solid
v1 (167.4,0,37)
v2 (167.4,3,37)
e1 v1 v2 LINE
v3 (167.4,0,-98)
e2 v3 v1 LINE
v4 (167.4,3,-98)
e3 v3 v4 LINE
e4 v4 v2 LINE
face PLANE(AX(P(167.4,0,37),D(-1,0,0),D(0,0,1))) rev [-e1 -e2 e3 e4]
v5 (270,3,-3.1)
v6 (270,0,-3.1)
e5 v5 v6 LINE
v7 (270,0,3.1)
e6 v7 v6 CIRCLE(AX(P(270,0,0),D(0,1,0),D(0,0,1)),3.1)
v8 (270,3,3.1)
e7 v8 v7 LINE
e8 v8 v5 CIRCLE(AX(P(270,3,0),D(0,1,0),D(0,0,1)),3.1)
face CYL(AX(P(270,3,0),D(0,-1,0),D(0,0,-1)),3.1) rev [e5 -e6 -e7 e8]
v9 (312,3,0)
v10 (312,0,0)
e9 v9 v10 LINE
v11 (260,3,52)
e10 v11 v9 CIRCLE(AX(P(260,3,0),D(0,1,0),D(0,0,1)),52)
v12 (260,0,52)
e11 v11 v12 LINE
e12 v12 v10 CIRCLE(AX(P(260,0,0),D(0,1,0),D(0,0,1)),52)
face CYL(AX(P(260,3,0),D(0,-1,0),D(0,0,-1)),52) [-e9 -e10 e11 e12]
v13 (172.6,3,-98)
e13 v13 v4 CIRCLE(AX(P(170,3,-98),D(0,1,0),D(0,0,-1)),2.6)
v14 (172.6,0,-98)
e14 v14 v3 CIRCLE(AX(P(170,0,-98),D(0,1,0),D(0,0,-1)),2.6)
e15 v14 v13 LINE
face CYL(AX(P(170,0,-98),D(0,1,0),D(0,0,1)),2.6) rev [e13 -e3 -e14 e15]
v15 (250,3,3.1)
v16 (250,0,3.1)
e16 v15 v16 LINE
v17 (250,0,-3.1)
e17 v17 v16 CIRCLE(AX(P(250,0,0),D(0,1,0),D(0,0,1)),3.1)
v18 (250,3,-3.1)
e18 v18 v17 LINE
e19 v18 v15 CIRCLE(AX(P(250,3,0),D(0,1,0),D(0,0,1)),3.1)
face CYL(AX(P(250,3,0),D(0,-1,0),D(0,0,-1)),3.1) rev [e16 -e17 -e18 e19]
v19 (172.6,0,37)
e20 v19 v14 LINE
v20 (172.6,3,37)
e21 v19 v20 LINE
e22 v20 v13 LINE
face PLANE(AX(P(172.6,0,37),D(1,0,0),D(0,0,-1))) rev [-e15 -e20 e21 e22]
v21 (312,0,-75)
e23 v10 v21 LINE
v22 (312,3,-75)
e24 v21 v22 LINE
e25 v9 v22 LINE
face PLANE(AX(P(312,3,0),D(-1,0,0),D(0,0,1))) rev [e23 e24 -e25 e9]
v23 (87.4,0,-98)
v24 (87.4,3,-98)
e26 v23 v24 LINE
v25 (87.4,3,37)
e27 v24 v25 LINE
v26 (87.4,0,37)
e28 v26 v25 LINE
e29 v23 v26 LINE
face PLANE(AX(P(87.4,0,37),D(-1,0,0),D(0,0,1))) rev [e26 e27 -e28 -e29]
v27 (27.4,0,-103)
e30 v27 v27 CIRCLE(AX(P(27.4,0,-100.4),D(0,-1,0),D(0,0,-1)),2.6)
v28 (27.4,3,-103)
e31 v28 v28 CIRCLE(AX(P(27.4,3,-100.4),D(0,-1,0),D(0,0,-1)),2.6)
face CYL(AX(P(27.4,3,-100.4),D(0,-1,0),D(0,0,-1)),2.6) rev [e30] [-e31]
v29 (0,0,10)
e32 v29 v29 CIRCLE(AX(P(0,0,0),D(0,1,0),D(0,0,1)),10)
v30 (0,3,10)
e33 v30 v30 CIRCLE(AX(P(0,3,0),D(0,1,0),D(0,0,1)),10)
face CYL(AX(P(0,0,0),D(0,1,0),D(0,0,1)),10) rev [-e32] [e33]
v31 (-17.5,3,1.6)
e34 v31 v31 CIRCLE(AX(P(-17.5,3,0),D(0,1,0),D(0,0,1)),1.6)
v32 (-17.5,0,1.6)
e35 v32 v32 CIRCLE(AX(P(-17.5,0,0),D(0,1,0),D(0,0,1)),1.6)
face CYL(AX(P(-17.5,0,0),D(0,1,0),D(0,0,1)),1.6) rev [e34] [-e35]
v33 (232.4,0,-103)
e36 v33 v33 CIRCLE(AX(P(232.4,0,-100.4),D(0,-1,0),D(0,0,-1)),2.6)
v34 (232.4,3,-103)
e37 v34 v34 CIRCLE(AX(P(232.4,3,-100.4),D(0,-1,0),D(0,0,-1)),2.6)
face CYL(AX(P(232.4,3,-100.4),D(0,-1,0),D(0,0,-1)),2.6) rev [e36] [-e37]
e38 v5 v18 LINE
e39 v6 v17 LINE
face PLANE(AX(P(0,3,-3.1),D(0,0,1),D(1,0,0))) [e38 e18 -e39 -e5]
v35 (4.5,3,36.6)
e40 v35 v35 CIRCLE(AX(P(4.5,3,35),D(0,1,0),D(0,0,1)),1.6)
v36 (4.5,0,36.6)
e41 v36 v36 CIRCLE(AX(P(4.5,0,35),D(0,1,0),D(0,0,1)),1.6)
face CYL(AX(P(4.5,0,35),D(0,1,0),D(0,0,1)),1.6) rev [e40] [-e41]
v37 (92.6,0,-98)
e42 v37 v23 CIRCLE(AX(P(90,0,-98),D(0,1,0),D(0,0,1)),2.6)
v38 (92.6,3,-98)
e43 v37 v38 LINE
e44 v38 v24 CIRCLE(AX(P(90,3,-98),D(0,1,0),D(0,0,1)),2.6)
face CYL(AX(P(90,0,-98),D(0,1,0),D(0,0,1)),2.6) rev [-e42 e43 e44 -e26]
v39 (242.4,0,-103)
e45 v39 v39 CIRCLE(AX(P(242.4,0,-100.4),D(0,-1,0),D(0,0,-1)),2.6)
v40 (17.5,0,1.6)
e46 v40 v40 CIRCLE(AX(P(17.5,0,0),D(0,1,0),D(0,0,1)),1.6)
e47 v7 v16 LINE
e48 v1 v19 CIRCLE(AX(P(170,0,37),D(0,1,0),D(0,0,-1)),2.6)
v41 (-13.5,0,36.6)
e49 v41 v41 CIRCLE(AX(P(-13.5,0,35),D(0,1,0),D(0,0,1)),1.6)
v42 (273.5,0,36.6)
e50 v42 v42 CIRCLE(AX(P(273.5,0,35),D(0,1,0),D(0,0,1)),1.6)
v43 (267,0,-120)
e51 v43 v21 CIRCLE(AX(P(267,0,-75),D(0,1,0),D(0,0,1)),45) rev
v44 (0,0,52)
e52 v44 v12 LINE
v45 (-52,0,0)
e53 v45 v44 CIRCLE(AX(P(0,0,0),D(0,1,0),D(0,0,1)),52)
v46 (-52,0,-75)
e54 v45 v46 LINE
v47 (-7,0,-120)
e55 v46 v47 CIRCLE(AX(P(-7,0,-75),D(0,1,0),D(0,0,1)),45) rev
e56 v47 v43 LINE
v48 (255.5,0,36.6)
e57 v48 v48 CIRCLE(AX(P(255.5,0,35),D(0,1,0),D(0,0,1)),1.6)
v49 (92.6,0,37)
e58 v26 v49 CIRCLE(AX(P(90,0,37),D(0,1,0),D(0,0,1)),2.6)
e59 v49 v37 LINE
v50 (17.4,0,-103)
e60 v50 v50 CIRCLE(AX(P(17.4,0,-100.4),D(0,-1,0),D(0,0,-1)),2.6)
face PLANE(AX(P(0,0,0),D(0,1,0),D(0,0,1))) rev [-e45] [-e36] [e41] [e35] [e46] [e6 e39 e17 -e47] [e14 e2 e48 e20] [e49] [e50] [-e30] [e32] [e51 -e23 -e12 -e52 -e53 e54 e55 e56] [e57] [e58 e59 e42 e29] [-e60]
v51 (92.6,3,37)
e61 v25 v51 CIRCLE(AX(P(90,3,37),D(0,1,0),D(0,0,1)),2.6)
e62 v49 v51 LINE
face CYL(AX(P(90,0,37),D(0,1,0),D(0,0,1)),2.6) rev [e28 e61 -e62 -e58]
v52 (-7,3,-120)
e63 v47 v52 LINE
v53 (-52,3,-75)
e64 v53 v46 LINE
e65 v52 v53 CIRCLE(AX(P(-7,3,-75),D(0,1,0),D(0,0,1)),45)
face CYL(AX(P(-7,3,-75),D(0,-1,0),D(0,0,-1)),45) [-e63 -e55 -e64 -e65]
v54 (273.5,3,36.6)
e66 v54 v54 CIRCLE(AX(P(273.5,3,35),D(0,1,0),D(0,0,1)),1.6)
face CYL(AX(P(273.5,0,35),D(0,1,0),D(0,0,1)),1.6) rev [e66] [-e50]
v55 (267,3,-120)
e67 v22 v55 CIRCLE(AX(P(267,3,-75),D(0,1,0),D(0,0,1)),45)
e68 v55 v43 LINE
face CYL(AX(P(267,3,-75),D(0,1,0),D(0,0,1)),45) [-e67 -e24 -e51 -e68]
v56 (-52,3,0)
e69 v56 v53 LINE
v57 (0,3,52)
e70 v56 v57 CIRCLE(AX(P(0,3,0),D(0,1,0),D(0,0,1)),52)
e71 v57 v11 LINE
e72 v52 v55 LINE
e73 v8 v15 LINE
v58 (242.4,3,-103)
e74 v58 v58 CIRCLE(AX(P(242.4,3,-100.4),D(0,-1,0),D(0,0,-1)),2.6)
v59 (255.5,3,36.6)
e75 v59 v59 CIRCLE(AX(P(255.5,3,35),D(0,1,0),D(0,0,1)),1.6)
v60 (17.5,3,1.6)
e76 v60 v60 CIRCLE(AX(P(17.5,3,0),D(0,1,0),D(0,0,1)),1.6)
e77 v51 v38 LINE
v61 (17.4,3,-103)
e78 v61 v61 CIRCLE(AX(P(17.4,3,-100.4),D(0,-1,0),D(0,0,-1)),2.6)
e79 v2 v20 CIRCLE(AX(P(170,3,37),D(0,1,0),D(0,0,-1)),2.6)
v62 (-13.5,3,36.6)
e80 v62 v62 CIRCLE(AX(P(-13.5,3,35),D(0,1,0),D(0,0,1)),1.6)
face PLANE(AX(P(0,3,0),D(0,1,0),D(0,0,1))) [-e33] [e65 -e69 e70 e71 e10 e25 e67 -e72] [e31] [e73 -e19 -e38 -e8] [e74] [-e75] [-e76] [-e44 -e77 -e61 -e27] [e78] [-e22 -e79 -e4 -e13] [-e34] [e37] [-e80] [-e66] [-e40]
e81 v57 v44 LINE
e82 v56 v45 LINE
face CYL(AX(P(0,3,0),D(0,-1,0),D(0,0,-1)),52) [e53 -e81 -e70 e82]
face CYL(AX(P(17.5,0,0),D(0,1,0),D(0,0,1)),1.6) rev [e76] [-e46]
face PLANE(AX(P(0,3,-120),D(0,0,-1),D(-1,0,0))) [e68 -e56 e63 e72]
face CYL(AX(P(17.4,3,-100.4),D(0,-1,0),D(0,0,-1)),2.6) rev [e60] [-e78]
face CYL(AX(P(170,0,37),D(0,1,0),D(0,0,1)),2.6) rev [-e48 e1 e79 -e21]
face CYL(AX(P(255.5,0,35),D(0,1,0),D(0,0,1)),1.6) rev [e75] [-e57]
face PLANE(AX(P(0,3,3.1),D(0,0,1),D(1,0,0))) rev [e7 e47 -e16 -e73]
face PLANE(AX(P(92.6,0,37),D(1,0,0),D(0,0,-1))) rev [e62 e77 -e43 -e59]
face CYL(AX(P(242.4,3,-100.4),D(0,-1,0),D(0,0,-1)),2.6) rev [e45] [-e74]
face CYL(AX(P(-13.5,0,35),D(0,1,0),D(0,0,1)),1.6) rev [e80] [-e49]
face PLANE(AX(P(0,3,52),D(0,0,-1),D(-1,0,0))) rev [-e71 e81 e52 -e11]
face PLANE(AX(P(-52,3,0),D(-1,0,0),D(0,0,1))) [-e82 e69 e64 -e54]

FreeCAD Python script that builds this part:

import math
import FreeCAD as App
import Part
import Sketcher
from FreeCAD import Vector
Q = App.Units.Quantity


def edges_at(feature, points):
    """Names of the edges that pass closest to the given points."""
    edges = feature.Shape.Edges
    near = lambda p: min(range(len(edges)), key=lambda i: edges[i].distToShape(Part.Vertex(*p))[0])
    return sorted({f"Edge{near(p) + 1}" for p in points})

doc = App.newDocument("Part")
body = doc.addObject("PartDesign::Body", "Body")

sketch1 = body.newObject("Sketcher::SketchObject", "Sketch")
sketch1.AttachmentSupport = (doc.getObject("XZ_Plane"), [""])
sketch1.MapMode = "FlatFace"
sketch1.addGeometry(Part.LineSegment(Vector(0, 52, 0), Vector(260, 52, 0)), False)
sketch1.addGeometry(Part.ArcOfCircle(Part.Circle(Vector(260, 0, 0), Vector(0, 0, 1), 52), math.radians(0), math.radians(90)), False)
sketch1.addGeometry(Part.LineSegment(Vector(312, 0, 0), Vector(312, -120, 0)), False)
sketch1.addGeometry(Part.LineSegment(Vector(312, -120, 0), Vector(-52, -120, 0)), False)
sketch1.addGeometry(Part.LineSegment(Vector(-52, -120, 0), Vector(-52, 0, 0)), False)
sketch1.addGeometry(Part.ArcOfCircle(Part.Circle(Vector(0, 0, 0), Vector(0, 0, 1), 52), math.radians(90), math.radians(180)), False)
sketch1.addGeometry(Part.Circle(Vector(0, 0, 0), Vector(0, 0, 1), 3.1), False)
sketch1.addGeometry(Part.ArcOfCircle(Part.Circle(Vector(250, 0, 0), Vector(0, 0, 1), 3.1), math.radians(90), math.radians(270)), False)
sketch1.addGeometry(Part.LineSegment(Vector(250, -3.1, 0), Vector(270, -3.1, 0)), False)
sketch1.addGeometry(Part.ArcOfCircle(Part.Circle(Vector(270, 0, 0), Vector(0, 0, 1), 3.1), math.radians(-90), math.radians(90)), False)
sketch1.addGeometry(Part.LineSegment(Vector(270, 3.1, 0), Vector(250, 3.1, 0)), False)
sketch1.addConstraint(Sketcher.Constraint("Tangent", 0, 2, 1, 2))
sketch1.addConstraint(Sketcher.Constraint("Tangent", 1, 1, 2, 1))
sketch1.addConstraint(Sketcher.Constraint("Coincident", 2, 2, 3, 1))
sketch1.addConstraint(Sketcher.Constraint("Coincident", 3, 2, 4, 1))
sketch1.addConstraint(Sketcher.Constraint("Tangent", 4, 2, 5, 2))
sketch1.addConstraint(Sketcher.Constraint("Tangent", 5, 1, 0, 1))
sketch1.addConstraint(Sketcher.Constraint("Tangent", 7, 2, 8, 1))
sketch1.addConstraint(Sketcher.Constraint("Tangent", 8, 2, 9, 1))
sketch1.addConstraint(Sketcher.Constraint("Tangent", 9, 2, 10, 1))
sketch1.addConstraint(Sketcher.Constraint("Tangent", 10, 2, 7, 1))
sketch1.addConstraint(Sketcher.Constraint("Horizontal", 0))
sketch1.addConstraint(Sketcher.Constraint("Vertical", 2))
sketch1.addConstraint(Sketcher.Constraint("Horizontal", 3))
sketch1.addConstraint(Sketcher.Constraint("Vertical", 4))
sketch1.addConstraint(Sketcher.Constraint("Horizontal", 8))
sketch1.addConstraint(Sketcher.Constraint("Horizontal", 10))
sketch1.addConstraint(Sketcher.Constraint("Coincident", 5, 3, -1, 1))
sketch1.addConstraint(Sketcher.Constraint("Coincident", 6, 3, -1, 1))
sketch1.addConstraint(Sketcher.Constraint("Equal", 1, 5))
sketch1.addConstraint(Sketcher.Constraint("Equal", 6, 7))
sketch1.addConstraint(Sketcher.Constraint("PointOnObject", 7, 3, -1))
sketch1.addConstraint(Sketcher.Constraint("Radius", 1, Q("52 mm")))
sketch1.addConstraint(Sketcher.Constraint("Diameter", 6, Q("6.2 mm")))
sketch1.addConstraint(Sketcher.Constraint("DistanceX", 0, 1, 0, 2, Q("260 mm")))
sketch1.addConstraint(Sketcher.Constraint("DistanceX", 8, 1, 8, 2, Q("20 mm")))
sketch1.addConstraint(Sketcher.Constraint("DistanceY", 2, 2, 2, 1, Q("120 mm")))
sketch1.addConstraint(Sketcher.Constraint("DistanceX", -1, 1, 7, 3, Q("250 mm")))
pad1 = body.newObject("PartDesign::Pad", "Pad")
pad1.Profile = sketch1
pad1.Length = 3
pad1.Reversed = True

sketch2 = body.newObject("Sketcher::SketchObject", "Sketch001")
sketch2.AttachmentSupport = (doc.getObject("XZ_Plane"), [""])
sketch2.MapMode = "FlatFace"
sketch2.AttachmentOffset = App.Placement(Vector(0, 0, -3), App.Rotation())
sketch2.addGeometry(Part.LineSegment(Vector(87.4, -98, 0), Vector(87.4, 37, 0)), False)
sketch2.addGeometry(Part.ArcOfCircle(Part.Circle(Vector(90, 37, 0), Vector(0, 0, 1), 2.6), math.radians(0), math.radians(180)), False)
sketch2.addGeometry(Part.LineSegment(Vector(92.6, 37, 0), Vector(92.6, -98, 0)), False)
sketch2.addGeometry(Part.ArcOfCircle(Part.Circle(Vector(90, -98, 0), Vector(0, 0, 1), 2.6), math.radians(180), math.radians(360)), False)
sketch2.addGeometry(Part.LineSegment(Vector(172.6, 37, 0), Vector(172.6, -98, 0)), False)
sketch2.addGeometry(Part.ArcOfCircle(Part.Circle(Vector(170, -98, 0), Vector(0, 0, 1), 2.6), math.radians(180), math.radians(360)), False)
sketch2.addGeometry(Part.LineSegment(Vector(167.4, -98, 0), Vector(167.4, 37, 0)), False)
sketch2.addGeometry(Part.ArcOfCircle(Part.Circle(Vector(170, 37, 0), Vector(0, 0, 1), 2.6), math.radians(0), math.radians(180)), False)
sketch2.addConstraint(Sketcher.Constraint("Tangent", 0, 2, 1, 2))
sketch2.addConstraint(Sketcher.Constraint("Tangent", 1, 1, 2, 1))
sketch2.addConstraint(Sketcher.Constraint("Tangent", 2, 2, 3, 2))
sketch2.addConstraint(Sketcher.Constraint("Tangent", 3, 1, 0, 1))
sketch2.addConstraint(Sketcher.Constraint("Tangent", 4, 2, 5, 2))
sketch2.addConstraint(Sketcher.Constraint("Tangent", 5, 1, 6, 1))
sketch2.addConstraint(Sketcher.Constraint("Tangent", 6, 2, 7, 2))
sketch2.addConstraint(Sketcher.Constraint("Tangent", 7, 1, 4, 1))
sketch2.addConstraint(Sketcher.Constraint("Vertical", 0))
sketch2.addConstraint(Sketcher.Constraint("Vertical", 2))
sketch2.addConstraint(Sketcher.Constraint("Vertical", 4))
sketch2.addConstraint(Sketcher.Constraint("Vertical", 6))
sketch2.addConstraint(Sketcher.Constraint("Equal", 3, 5))
sketch2.addConstraint(Sketcher.Constraint("Horizontal", 3, 3, 5, 3))
sketch2.addConstraint(Sketcher.Constraint("Horizontal", 1, 3, 7, 3))
sketch2.addConstraint(Sketcher.Constraint("Radius", 1, Q("2.6 mm")))
sketch2.addConstraint(Sketcher.Constraint("DistanceY", 0, 1, 0, 2, Q("135 mm")))
sketch2.addConstraint(Sketcher.Constraint("DistanceX", -1, 1, 1, 3, Q("90 mm")))
sketch2.addConstraint(Sketcher.Constraint("DistanceY", -1, 1, 1, 3, Q("37 mm")))
sketch2.addConstraint(Sketcher.Constraint("DistanceX", -1, 1, 5, 3, Q("170 mm")))
pocket1 = body.newObject("PartDesign::Pocket", "Pocket")
pocket1.Profile = sketch2
pocket1.Type = "ThroughAll"
pocket1.Reversed = True
doc.recompute()

fillet = body.newObject("PartDesign::Fillet", "Fillet")
fillet.Base = (pocket1, edges_at(pocket1, [(-52, 1.5, -120), (312, 1.5, -120)]))
fillet.Radius = 45

sketch3 = body.newObject("Sketcher::SketchObject", "Sketch002")
sketch3.AttachmentSupport = (doc.getObject("XZ_Plane"), [""])
sketch3.MapMode = "FlatFace"
sketch3.AttachmentOffset = App.Placement(Vector(0, 0, -3), App.Rotation())
sketch3.addGeometry(Part.Circle(Vector(0, 0, 0), Vector(0, 0, 1), 10), False)
sketch3.addConstraint(Sketcher.Constraint("Coincident", 0, 3, -1, 1))
sketch3.addConstraint(Sketcher.Constraint("Diameter", 0, Q("20 mm")))
pocket2 = body.newObject("PartDesign::Pocket", "Pocket001")
pocket2.Profile = sketch3
pocket2.Type = "ThroughAll"
pocket2.Reversed = True

sketch4 = body.newObject("Sketcher::SketchObject", "Sketch003")
sketch4.AttachmentSupport = (doc.getObject("XZ_Plane"), [""])
sketch4.MapMode = "FlatFace"
sketch4.addGeometry(Part.Circle(Vector(17.4, -100.4, 0), Vector(0, 0, 1), 2.6), False)
sketch4.addGeometry(Part.Circle(Vector(27.4, -100.4, 0), Vector(0, 0, 1), 2.6), False)
sketch4.addGeometry(Part.Circle(Vector(232.4, -100.4, 0), Vector(0, 0, 1), 2.6), False)
sketch4.addGeometry(Part.Circle(Vector(242.4, -100.4, 0), Vector(0, 0, 1), 2.6), False)
sketch4.addConstraint(Sketcher.Constraint("Equal", 0, 1))
sketch4.addConstraint(Sketcher.Constraint("Equal", 1, 2))
sketch4.addConstraint(Sketcher.Constraint("Equal", 2, 3))
sketch4.addConstraint(Sketcher.Constraint("Horizontal", 0, 3, 1, 3))
sketch4.addConstraint(Sketcher.Constraint("Horizontal", 1, 3, 2, 3))
sketch4.addConstraint(Sketcher.Constraint("Horizontal", 2, 3, 3, 3))
sketch4.addConstraint(Sketcher.Constraint("Diameter", 0, Q("5.2 mm")))
sketch4.addConstraint(Sketcher.Constraint("DistanceX", 0, 3, 1, 3, Q("10 mm")))
sketch4.addConstraint(Sketcher.Constraint("DistanceX", 1, 3, 2, 3, Q("205 mm")))
sketch4.addConstraint(Sketcher.Constraint("DistanceX", 2, 3, 3, 3, Q("10 mm")))
sketch4.addConstraint(Sketcher.Constraint("DistanceX", -1, 1, 0, 3, Q("17.4 mm")))
sketch4.addConstraint(Sketcher.Constraint("DistanceY", 0, 3, -1, 1, Q("100.4 mm")))
pocket3 = body.newObject("PartDesign::Pocket", "Pocket002")
pocket3.Profile = sketch4
pocket3.Type = "ThroughAll"

sketch5 = body.newObject("Sketcher::SketchObject", "Sketch004")
sketch5.AttachmentSupport = (doc.getObject("XZ_Plane"), [""])
sketch5.MapMode = "FlatFace"
sketch5.AttachmentOffset = App.Placement(Vector(0, 0, -3), App.Rotation())
sketch5.addGeometry(Part.Circle(Vector(-17.5, 0, 0), Vector(0, 0, 1), 1.6), False)
sketch5.addGeometry(Part.Circle(Vector(17.5, 0, 0), Vector(0, 0, 1), 1.6), False)
sketch5.addConstraint(Sketcher.Constraint("Equal", 0, 1))
sketch5.addConstraint(Sketcher.Constraint("Symmetric", 0, 3, 1, 3, -1, 1))
sketch5.addConstraint(Sketcher.Constraint("PointOnObject", 0, 3, -1))
sketch5.addConstraint(Sketcher.Constraint("Diameter", 0, Q("3.2 mm")))
sketch5.addConstraint(Sketcher.Constraint("DistanceX", 0, 3, 1, 3, Q("35 mm")))
pocket4 = body.newObject("PartDesign::Pocket", "Pocket003")
pocket4.Profile = sketch5
pocket4.Type = "ThroughAll"
pocket4.Reversed = True

sketch6 = body.newObject("Sketcher::SketchObject", "Sketch005")
sketch6.AttachmentSupport = (doc.getObject("XZ_Plane"), [""])
sketch6.MapMode = "FlatFace"
sketch6.AttachmentOffset = App.Placement(Vector(0, 0, -3), App.Rotation())
sketch6.addGeometry(Part.Circle(Vector(-13.5, 35, 0), Vector(0, 0, 1), 1.6), False)
sketch6.addGeometry(Part.Circle(Vector(4.5, 35, 0), Vector(0, 0, 1), 1.6), False)
sketch6.addGeometry(Part.Circle(Vector(255.5, 35, 0), Vector(0, 0, 1), 1.6), False)
sketch6.addGeometry(Part.Circle(Vector(273.5, 35, 0), Vector(0, 0, 1), 1.6), False)
sketch6.addConstraint(Sketcher.Constraint("Equal", 0, 1))
sketch6.addConstraint(Sketcher.Constraint("Equal", 1, 2))
sketch6.addConstraint(Sketcher.Constraint("Equal", 2, 3))
sketch6.addConstraint(Sketcher.Constraint("Horizontal", 0, 3, 1, 3))
sketch6.addConstraint(Sketcher.Constraint("Horizontal", 1, 3, 2, 3))
sketch6.addConstraint(Sketcher.Constraint("Horizontal", 2, 3, 3, 3))
sketch6.addConstraint(Sketcher.Constraint("Diameter", 0, Q("3.2 mm")))
sketch6.addConstraint(Sketcher.Constraint("DistanceY", -1, 1, 0, 3, Q("35 mm")))
sketch6.addConstraint(Sketcher.Constraint("DistanceX", 0, 3, 1, 3, Q("18 mm")))
sketch6.addConstraint(Sketcher.Constraint("DistanceX", 1, 3, 2, 3, Q("251 mm")))
sketch6.addConstraint(Sketcher.Constraint("DistanceX", 2, 3, 3, 3, Q("18 mm")))
sketch6.addConstraint(Sketcher.Constraint("DistanceX", 0, 3, -1, 1, Q("13.5 mm")))
pocket5 = body.newObject("PartDesign::Pocket", "Pocket004")
pocket5.Profile = sketch6
pocket5.Type = "ThroughAll"
pocket5.Reversed = True

doc.recompute()
